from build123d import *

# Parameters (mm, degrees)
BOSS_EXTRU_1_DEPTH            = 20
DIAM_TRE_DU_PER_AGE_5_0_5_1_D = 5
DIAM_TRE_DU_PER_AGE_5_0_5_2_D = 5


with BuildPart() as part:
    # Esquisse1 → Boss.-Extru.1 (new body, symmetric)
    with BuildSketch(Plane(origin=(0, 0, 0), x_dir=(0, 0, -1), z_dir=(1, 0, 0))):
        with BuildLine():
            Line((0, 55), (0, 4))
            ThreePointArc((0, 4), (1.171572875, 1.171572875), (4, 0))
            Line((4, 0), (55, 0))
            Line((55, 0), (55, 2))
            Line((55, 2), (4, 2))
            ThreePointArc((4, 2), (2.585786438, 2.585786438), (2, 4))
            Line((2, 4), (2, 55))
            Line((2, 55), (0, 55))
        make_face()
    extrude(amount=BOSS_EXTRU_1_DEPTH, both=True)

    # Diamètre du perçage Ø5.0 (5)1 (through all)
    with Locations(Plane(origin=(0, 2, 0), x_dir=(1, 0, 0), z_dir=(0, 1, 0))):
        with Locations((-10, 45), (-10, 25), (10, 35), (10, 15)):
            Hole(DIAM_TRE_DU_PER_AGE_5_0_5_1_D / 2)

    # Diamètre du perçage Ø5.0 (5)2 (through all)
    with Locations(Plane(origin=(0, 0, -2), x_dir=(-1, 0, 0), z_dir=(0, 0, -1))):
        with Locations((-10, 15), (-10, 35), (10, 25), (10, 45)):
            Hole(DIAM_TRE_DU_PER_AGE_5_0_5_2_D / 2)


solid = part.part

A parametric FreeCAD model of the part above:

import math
import FreeCAD as App
import Part
import Sketcher
from FreeCAD import Vector

doc = App.newDocument("Part")
params = doc.addObject("Spreadsheet::Sheet", "Params")
for row, (alias, value) in enumerate([
    ("sketch1_radius", "4 mm"),
    ("sketch1_radius2", "2 mm"),
    ("sketch1_width", "51 mm"),
    ("pad1_length", "40 mm"),
    ("sketch2_diameter", "5 mm"),
    ("hole_diameter", "5 mm"),
    ("sketch3_diameter", "5 mm"),
    ("hole2_diameter", "5 mm"),
], start=1):
    params.set(f"A{row}", alias)
    params.set(f"B{row}", "=" + value)
    params.setAlias(f"B{row}", alias)

body = doc.addObject("PartDesign::Body", "Body")

# Sketch on YZ plane
sketch1 = body.newObject("Sketcher::SketchObject", "Sketch")
sketch1.AttachmentSupport = (doc.getObject("YZ_Plane"), [""])
sketch1.MapMode = "FlatFace"
sketch1.addGeometry(Part.LineSegment(Vector(55, 0, 0), Vector(4, 0, 0)), False)
sketch1.addGeometry(Part.ArcOfCircle(Part.Circle(Vector(4, -4, 0), Vector(0, 0, 1), 4), math.radians(90), math.radians(180)), False)
sketch1.addGeometry(Part.LineSegment(Vector(0, -4, 0), Vector(0, -55, 0)), False)
sketch1.addGeometry(Part.LineSegment(Vector(0, -55, 0), Vector(2, -55, 0)), False)
sketch1.addGeometry(Part.LineSegment(Vector(2, -55, 0), Vector(2, -4, 0)), False)
sketch1.addGeometry(Part.ArcOfCircle(Part.Circle(Vector(4, -4, 0), Vector(0, 0, 1), 2), math.radians(90), math.radians(180)), False)
sketch1.addGeometry(Part.LineSegment(Vector(4, -2, 0), Vector(55, -2, 0)), False)
sketch1.addGeometry(Part.LineSegment(Vector(55, -2, 0), Vector(55, 0, 0)), False)
sketch1.addConstraint(Sketcher.Constraint("Tangent", 0, 2, 1, 1))
sketch1.addConstraint(Sketcher.Constraint("Tangent", 1, 2, 2, 1))
sketch1.addConstraint(Sketcher.Constraint("Coincident", 2, 2, 3, 1))
sketch1.addConstraint(Sketcher.Constraint("Coincident", 3, 2, 4, 1))
sketch1.addConstraint(Sketcher.Constraint("Tangent", 4, 2, 5, 2))
sketch1.addConstraint(Sketcher.Constraint("Tangent", 5, 1, 6, 1))
sketch1.addConstraint(Sketcher.Constraint("Coincident", 6, 2, 7, 1))
sketch1.addConstraint(Sketcher.Constraint("Coincident", 7, 2, 0, 1))
sketch1.addConstraint(Sketcher.Constraint("Horizontal", 0))
sketch1.addConstraint(Sketcher.Constraint("Vertical", 2))
sketch1.addConstraint(Sketcher.Constraint("Horizontal", 3))
sketch1.addConstraint(Sketcher.Constraint("Vertical", 4))
sketch1.addConstraint(Sketcher.Constraint("Horizontal", 6))
sketch1.addConstraint(Sketcher.Constraint("Vertical", 7))
sketch1.addConstraint(Sketcher.Constraint("Coincident", 5, 3, 1, 3))
sketch1.addConstraint(Sketcher.Constraint("PointOnObject", 0, 2, -1))
sketch1.addConstraint(Sketcher.Constraint("PointOnObject", 1, 2, -2))
sketch1.addConstraint(Sketcher.Constraint("Equal", 6, 2))
sketch1.addConstraint(Sketcher.Constraint("Radius", 1, 4.0))
sketch1.addConstraint(Sketcher.Constraint("Radius", 5, 2.0))
sketch1.addConstraint(Sketcher.Constraint("DistanceX", 0, 2, 0, 1, 51.0))
sketch1.setExpression("Constraints[18]", "Params.sketch1_radius")
sketch1.setExpression("Constraints[19]", "Params.sketch1_radius2")
sketch1.setExpression("Constraints[20]", "Params.sketch1_width")
pad1 = body.newObject("PartDesign::Pad", "Pad")
pad1.Profile = sketch1
pad1.setExpression("Length", "Params.pad1_length")
pad1.Midplane = True

# Sketch on XZ plane
sketch2 = body.newObject("Sketcher::SketchObject", "Sketch001")
sketch2.AttachmentSupport = (doc.getObject("XZ_Plane"), [""])
sketch2.MapMode = "FlatFace"
sketch2.AttachmentOffset = App.Placement(Vector(0, 0, -2), App.Rotation())
sketch2.addGeometry(Part.Circle(Vector(-10, -45, 0), Vector(0, 0, 1), 2.5), False)
sketch2.addGeometry(Part.Circle(Vector(-10, -25, 0), Vector(0, 0, 1), 2.5), False)
sketch2.addGeometry(Part.Circle(Vector(10, -35, 0), Vector(0, 0, 1), 2.5), False)
sketch2.addGeometry(Part.Circle(Vector(10, -15, 0), Vector(0, 0, 1), 2.5), False)
sketch2.addConstraint(Sketcher.Constraint("Equal", 0, 1))
sketch2.addConstraint(Sketcher.Constraint("Equal", 1, 2))
sketch2.addConstraint(Sketcher.Constraint("Equal", 2, 3))
sketch2.addConstraint(Sketcher.Constraint("Vertical", 0, 3, 1, 3))
sketch2.addConstraint(Sketcher.Constraint("Vertical", 2, 3, 3, 3))
sketch2.addConstraint(Sketcher.Constraint("Diameter", 0, 5.0))
sketch2.addConstraint(Sketcher.Constraint("DistanceX", 0, 3, -1, 1, 10.0))
sketch2.addConstraint(Sketcher.Constraint("DistanceY", 0, 3, -1, 1, 45.0))
sketch2.addConstraint(Sketcher.Constraint("DistanceY", 1, 3, -1, 1, 25.0))
sketch2.addConstraint(Sketcher.Constraint("DistanceX", -1, 1, 2, 3, 10.0))
sketch2.addConstraint(Sketcher.Constraint("DistanceY", 2, 3, -1, 1, 35.0))
sketch2.addConstraint(Sketcher.Constraint("DistanceY", 3, 3, -1, 1, 15.0))
sketch2.setExpression("Constraints[5]", "Params.sketch2_diameter")
doc.recompute()
hole = body.newObject("PartDesign::Hole", "Hole")
hole.Profile = sketch2
hole.ThreadType = "None"
hole.setExpression("Diameter", "Params.hole_diameter")
hole.DepthType = "ThroughAll"
hole.Reversed = True

# Sketch on XY plane
sketch3 = body.newObject("Sketcher::SketchObject", "Sketch002")
sketch3.AttachmentSupport = (doc.getObject("XY_Plane"), [""])
sketch3.MapMode = "FlatFace"
sketch3.AttachmentOffset = App.Placement(Vector(0, 0, -2), App.Rotation())
sketch3.addGeometry(Part.Circle(Vector(10, 15, 0), Vector(0, 0, 1), 2.5), False)
sketch3.addGeometry(Part.Circle(Vector(10, 35, 0), Vector(0, 0, 1), 2.5), False)
sketch3.addGeometry(Part.Circle(Vector(-10, 25, 0), Vector(0, 0, 1), 2.5), False)
sketch3.addGeometry(Part.Circle(Vector(-10, 45, 0), Vector(0, 0, 1), 2.5), False)
sketch3.addConstraint(Sketcher.Constraint("Equal", 0, 1))
sketch3.addConstraint(Sketcher.Constraint("Equal", 1, 2))
sketch3.addConstraint(Sketcher.Constraint("Equal", 2, 3))
sketch3.addConstraint(Sketcher.Constraint("Vertical", 0, 3, 1, 3))
sketch3.addConstraint(Sketcher.Constraint("Vertical", 2, 3, 3, 3))
sketch3.addConstraint(Sketcher.Constraint("Diameter", 0, 5.0))
sketch3.addConstraint(Sketcher.Constraint("DistanceX", -1, 1, 0, 3, 10.0))
sketch3.addConstraint(Sketcher.Constraint("DistanceY", -1, 1, 0, 3, 15.0))
sketch3.addConstraint(Sketcher.Constraint("DistanceY", -1, 1, 1, 3, 35.0))
sketch3.addConstraint(Sketcher.Constraint("DistanceX", 2, 3, -1, 1, 10.0))
sketch3.addConstraint(Sketcher.Constraint("DistanceY", -1, 1, 2, 3, 25.0))
sketch3.addConstraint(Sketcher.Constraint("DistanceY", -1, 1, 3, 3, 45.0))
sketch3.setExpression("Constraints[5]", "Params.sketch3_diameter")
doc.recompute()
hole2 = body.newObject("PartDesign::Hole", "Hole001")
hole2.Profile = sketch3
hole2.ThreadType = "None"
hole2.setExpression("Diameter", "Params.hole2_diameter")
hole2.DepthType = "ThroughAll"
hole2.Reversed = True

doc.recompute()
